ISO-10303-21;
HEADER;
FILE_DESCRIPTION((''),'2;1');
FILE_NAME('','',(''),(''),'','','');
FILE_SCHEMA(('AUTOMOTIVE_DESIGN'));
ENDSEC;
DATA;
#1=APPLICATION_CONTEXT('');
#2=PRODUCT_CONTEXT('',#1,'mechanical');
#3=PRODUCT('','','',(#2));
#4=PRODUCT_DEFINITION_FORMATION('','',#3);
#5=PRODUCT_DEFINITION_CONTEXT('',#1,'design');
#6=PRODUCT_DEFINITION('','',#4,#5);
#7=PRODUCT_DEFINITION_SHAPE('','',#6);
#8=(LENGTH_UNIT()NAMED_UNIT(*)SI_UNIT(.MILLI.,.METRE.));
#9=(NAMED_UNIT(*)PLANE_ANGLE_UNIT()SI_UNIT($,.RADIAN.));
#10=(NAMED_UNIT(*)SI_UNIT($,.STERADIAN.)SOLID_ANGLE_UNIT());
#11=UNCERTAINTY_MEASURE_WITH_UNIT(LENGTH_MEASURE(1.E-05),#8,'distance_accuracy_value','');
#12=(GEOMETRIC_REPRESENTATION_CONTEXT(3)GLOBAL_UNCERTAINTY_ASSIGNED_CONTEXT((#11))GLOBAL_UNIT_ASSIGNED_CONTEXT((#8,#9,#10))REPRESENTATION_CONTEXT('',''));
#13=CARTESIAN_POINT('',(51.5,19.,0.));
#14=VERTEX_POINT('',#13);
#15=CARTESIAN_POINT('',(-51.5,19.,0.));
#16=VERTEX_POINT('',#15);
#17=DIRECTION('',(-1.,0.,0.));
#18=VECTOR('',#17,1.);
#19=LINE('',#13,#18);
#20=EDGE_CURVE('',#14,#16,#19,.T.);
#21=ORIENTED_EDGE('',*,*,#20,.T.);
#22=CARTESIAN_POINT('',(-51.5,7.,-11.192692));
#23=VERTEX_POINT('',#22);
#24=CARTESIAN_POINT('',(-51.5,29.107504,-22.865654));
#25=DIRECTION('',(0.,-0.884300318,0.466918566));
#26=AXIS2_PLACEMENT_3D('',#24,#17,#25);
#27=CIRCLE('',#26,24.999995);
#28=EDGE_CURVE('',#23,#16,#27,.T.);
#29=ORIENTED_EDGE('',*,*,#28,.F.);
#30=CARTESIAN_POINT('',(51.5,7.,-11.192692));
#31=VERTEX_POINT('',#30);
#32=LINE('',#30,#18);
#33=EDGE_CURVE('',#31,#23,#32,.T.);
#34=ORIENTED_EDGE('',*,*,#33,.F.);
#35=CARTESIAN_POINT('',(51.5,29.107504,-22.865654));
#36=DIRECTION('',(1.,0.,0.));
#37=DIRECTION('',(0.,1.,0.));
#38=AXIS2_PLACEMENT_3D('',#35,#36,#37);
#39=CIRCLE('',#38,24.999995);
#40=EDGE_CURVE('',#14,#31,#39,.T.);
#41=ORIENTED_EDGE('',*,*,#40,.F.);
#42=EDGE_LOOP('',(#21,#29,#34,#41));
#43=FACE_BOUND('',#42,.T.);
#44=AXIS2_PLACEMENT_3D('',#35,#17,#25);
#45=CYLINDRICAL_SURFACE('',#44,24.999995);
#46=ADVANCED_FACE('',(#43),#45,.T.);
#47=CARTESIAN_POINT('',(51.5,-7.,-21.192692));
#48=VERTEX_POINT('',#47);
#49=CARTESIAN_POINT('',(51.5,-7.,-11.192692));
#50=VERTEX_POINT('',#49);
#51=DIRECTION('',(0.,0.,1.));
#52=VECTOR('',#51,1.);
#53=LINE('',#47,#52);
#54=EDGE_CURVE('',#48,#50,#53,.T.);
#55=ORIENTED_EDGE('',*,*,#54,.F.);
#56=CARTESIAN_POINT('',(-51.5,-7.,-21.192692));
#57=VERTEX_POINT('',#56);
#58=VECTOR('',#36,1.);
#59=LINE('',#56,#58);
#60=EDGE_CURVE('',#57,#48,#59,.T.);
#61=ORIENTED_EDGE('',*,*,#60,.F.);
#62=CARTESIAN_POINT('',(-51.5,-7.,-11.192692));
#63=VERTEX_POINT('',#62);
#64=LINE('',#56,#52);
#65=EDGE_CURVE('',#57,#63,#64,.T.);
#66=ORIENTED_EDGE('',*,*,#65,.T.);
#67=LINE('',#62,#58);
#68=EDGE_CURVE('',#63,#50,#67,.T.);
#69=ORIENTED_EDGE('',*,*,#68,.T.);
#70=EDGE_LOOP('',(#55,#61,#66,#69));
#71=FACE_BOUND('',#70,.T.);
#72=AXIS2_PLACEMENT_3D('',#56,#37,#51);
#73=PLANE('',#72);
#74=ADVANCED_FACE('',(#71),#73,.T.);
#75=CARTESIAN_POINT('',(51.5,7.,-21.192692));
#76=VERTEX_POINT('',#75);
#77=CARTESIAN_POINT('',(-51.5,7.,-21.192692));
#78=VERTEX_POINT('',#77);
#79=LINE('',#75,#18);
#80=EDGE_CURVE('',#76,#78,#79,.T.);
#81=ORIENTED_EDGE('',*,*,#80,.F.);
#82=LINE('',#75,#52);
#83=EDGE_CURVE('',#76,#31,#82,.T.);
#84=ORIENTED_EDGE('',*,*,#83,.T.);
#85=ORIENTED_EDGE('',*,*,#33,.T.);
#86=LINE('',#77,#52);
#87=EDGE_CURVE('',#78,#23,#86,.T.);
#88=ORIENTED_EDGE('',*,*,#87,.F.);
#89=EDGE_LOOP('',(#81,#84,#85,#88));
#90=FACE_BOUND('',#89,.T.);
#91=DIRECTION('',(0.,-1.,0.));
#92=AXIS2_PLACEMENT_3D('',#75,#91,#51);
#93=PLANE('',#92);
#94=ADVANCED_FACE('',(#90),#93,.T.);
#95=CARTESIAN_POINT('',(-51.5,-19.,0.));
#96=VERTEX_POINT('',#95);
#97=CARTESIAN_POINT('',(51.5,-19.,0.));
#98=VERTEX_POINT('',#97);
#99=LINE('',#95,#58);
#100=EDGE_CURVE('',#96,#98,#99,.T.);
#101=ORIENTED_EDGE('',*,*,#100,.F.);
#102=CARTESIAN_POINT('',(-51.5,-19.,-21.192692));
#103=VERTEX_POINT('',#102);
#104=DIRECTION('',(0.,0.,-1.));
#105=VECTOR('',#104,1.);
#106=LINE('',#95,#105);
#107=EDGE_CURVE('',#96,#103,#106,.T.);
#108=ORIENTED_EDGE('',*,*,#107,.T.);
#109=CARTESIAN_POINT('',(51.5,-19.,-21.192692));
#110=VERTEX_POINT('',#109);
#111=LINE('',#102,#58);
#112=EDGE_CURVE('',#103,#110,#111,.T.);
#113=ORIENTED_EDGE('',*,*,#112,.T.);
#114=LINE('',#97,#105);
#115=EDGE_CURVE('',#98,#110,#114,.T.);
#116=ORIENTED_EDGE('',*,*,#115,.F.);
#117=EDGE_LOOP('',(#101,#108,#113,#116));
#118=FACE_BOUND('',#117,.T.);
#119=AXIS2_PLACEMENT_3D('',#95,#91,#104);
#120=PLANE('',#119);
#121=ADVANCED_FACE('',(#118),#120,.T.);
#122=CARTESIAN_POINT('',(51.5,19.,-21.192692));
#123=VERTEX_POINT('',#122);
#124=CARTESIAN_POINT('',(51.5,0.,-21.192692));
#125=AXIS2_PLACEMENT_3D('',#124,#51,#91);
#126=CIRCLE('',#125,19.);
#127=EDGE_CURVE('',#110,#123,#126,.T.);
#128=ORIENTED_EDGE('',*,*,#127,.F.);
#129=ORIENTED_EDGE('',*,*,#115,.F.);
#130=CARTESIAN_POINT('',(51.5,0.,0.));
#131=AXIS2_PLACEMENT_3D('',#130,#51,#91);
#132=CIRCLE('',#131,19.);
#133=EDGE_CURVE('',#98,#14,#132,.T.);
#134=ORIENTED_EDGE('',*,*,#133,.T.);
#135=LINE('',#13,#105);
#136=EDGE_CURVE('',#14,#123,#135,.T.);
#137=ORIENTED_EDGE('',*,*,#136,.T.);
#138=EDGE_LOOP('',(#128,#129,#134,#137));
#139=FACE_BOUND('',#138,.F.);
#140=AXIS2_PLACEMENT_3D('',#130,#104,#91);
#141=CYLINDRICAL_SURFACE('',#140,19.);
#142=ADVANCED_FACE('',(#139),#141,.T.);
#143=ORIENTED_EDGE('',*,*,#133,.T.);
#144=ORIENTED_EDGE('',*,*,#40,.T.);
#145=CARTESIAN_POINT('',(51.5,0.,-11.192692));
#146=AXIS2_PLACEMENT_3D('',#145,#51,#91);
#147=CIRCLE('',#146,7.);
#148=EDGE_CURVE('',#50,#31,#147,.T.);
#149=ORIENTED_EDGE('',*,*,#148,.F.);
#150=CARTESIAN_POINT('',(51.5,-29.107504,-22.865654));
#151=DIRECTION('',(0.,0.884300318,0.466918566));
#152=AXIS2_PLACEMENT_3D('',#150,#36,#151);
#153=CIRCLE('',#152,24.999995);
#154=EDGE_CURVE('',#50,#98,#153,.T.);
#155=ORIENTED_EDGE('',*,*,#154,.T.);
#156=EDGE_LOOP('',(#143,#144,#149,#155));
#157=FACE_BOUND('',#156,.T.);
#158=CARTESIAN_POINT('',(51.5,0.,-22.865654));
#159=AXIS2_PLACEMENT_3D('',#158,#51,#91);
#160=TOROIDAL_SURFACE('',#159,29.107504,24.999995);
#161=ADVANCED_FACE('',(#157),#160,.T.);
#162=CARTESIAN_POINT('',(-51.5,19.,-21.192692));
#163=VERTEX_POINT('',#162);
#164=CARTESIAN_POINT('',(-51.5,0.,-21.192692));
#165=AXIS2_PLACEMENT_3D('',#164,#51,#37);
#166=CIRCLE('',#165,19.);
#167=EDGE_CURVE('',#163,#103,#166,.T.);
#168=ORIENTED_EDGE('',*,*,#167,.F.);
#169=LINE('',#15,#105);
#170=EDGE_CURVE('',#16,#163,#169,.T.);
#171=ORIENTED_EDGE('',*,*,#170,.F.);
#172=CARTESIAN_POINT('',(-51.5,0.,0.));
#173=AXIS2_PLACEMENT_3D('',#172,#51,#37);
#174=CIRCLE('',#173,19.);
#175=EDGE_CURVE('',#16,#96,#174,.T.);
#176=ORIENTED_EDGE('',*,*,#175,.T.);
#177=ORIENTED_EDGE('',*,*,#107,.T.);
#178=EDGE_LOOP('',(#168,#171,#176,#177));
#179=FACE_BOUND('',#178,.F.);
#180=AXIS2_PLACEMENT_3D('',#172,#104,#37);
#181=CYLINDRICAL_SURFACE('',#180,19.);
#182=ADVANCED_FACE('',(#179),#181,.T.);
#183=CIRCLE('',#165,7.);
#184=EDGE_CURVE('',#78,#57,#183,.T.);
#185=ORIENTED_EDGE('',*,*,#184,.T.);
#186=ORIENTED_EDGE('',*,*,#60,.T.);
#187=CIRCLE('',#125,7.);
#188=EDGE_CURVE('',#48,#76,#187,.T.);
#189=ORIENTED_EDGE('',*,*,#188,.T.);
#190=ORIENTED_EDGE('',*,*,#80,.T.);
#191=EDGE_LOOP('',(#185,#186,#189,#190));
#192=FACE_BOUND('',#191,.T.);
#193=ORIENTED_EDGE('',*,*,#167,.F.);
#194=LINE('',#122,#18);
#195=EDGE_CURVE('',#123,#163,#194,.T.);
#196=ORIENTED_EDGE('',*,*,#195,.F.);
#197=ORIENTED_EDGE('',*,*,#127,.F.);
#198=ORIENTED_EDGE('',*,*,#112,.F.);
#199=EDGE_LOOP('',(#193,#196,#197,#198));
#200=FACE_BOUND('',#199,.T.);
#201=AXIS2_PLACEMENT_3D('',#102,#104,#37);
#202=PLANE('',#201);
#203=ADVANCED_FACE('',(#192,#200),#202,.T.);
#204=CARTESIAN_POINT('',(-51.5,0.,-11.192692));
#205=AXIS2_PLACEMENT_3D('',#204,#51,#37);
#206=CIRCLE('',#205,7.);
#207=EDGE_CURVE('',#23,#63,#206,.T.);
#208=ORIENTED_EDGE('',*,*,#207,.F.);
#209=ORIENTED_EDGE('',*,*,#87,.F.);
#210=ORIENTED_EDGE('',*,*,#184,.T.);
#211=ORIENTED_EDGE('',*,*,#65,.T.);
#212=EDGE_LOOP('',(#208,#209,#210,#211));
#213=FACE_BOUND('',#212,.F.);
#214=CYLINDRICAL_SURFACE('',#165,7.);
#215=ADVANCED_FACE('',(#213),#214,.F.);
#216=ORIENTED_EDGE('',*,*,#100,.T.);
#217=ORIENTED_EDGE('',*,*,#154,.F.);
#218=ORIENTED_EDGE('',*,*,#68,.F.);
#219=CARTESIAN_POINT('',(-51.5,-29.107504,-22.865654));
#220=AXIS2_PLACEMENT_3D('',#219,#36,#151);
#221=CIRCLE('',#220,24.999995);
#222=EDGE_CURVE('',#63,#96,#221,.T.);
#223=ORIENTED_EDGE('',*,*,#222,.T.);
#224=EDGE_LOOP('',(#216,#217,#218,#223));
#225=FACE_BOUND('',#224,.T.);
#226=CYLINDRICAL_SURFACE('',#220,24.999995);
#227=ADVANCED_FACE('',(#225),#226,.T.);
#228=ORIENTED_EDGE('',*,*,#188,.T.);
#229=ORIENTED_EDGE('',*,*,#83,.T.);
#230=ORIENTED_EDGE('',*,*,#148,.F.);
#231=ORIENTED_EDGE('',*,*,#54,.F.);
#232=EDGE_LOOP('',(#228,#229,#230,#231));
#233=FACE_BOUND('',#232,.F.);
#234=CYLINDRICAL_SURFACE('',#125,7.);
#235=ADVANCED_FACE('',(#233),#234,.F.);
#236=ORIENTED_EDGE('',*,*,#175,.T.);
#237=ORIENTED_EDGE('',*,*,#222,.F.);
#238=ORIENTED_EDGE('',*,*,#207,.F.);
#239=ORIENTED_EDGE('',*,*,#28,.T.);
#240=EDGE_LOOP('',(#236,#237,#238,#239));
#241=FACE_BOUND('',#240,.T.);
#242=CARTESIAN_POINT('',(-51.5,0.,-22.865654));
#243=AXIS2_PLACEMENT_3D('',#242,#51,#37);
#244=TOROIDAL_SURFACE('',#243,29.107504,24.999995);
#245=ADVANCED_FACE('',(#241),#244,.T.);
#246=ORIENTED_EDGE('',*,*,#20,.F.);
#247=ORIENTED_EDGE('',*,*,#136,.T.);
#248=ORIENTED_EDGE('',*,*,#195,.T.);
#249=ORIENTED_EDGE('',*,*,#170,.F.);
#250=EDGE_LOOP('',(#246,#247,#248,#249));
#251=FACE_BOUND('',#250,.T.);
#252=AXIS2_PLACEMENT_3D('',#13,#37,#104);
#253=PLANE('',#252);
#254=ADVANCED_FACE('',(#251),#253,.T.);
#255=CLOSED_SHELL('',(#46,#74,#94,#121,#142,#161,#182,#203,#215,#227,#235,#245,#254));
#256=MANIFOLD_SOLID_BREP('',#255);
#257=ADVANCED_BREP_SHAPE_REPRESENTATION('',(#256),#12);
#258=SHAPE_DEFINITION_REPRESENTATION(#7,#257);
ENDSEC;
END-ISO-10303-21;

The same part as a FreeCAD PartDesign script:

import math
import FreeCAD as App
import Part
import Sketcher
from FreeCAD import Vector

doc = App.newDocument("Part")
body = doc.addObject("PartDesign::Body", "Body")

sketch1 = body.newObject("Sketcher::SketchObject", "Sketch")
sketch1.AttachmentSupport = (doc.getObject("YZ_Plane"), [""])
sketch1.MapMode = "FlatFace"
sketch1.addGeometry([
    Part.LineSegment(Vector(-7, -21, 0), Vector(-7, -11, 0)),
    Part.ArcOfCircle(Part.Circle(Vector(-29, -23, 0), Vector(0, 0, 1), 25), math.radians(28), math.radians(66)),
    Part.LineSegment(Vector(-19, 0, 0), Vector(-19, -21, 0)),
    Part.LineSegment(Vector(-19, -21, 0), Vector(-7, -21, 0)),
], False)
sketch1.addConstraint([
    Sketcher.Constraint("Coincident", 0, 2, 1, 1),
    Sketcher.Constraint("Coincident", 1, 2, 2, 1),
    Sketcher.Constraint("Coincident", 2, 2, 3, 1),
    Sketcher.Constraint("Coincident", 3, 2, 0, 1),
    Sketcher.Constraint("Vertical", 0),
    Sketcher.Constraint("Vertical", 2),
    Sketcher.Constraint("Horizontal", 3),
    Sketcher.Constraint("PointOnObject", 1, 2, -1),
    Sketcher.Constraint("DistanceX", 3, 1, 3, 2, 12.0),
    Sketcher.Constraint("DistanceY", 0, 1, 0, 2, 10.0),
    Sketcher.Constraint("DistanceX", 0, 2, -1, 1, 7.0),
    Sketcher.Constraint("Radius", 1, 24.999995),
    Sketcher.Constraint("DistanceY", 2, 2, 2, 1, 21.192692),
])

sketch2 = body.newObject("Sketcher::SketchObject", "Sketch001")
sketch2.AttachmentSupport = (doc.getObject("XY_Plane"), [""])
sketch2.MapMode = "FlatFace"
sketch2.addGeometry([
    Part.LineSegment(Vector(-52, -19, 0), Vector(52, -19, 0)),
    Part.ArcOfCircle(Part.Circle(Vector(52, 0, 0), Vector(0, 0, 1), 19), math.radians(-90), math.radians(90)),
    Part.LineSegment(Vector(52, 19, 0), Vector(-52, 19, 0)),
    Part.ArcOfCircle(Part.Circle(Vector(-52, 0, 0), Vector(0, 0, 1), 19), math.radians(90), math.radians(270)),
], False)
sketch2.addConstraint([
    Sketcher.Constraint("Tangent", 0, 2, 1, 1),
    Sketcher.Constraint("Tangent", 1, 2, 2, 1),
    Sketcher.Constraint("Tangent", 2, 2, 3, 1),
    Sketcher.Constraint("Tangent", 3, 2, 0, 1),
    Sketcher.Constraint("Horizontal", 0),
    Sketcher.Constraint("Horizontal", 2),
    Sketcher.Constraint("Symmetric", 1, 3, 3, 3, -1, 1),
    Sketcher.Constraint("Radius", 1, 19.0),
    Sketcher.Constraint("DistanceX", 0, 1, 0, 2, 103.0),
])
doc.recompute()

additivepipe = body.newObject("PartDesign::AdditivePipe", "AdditivePipe")
additivepipe.Profile = sketch1
additivepipe.Spine = (sketch2, ["Edge1", "Edge2", "Edge3", "Edge4"])

doc.recompute()
